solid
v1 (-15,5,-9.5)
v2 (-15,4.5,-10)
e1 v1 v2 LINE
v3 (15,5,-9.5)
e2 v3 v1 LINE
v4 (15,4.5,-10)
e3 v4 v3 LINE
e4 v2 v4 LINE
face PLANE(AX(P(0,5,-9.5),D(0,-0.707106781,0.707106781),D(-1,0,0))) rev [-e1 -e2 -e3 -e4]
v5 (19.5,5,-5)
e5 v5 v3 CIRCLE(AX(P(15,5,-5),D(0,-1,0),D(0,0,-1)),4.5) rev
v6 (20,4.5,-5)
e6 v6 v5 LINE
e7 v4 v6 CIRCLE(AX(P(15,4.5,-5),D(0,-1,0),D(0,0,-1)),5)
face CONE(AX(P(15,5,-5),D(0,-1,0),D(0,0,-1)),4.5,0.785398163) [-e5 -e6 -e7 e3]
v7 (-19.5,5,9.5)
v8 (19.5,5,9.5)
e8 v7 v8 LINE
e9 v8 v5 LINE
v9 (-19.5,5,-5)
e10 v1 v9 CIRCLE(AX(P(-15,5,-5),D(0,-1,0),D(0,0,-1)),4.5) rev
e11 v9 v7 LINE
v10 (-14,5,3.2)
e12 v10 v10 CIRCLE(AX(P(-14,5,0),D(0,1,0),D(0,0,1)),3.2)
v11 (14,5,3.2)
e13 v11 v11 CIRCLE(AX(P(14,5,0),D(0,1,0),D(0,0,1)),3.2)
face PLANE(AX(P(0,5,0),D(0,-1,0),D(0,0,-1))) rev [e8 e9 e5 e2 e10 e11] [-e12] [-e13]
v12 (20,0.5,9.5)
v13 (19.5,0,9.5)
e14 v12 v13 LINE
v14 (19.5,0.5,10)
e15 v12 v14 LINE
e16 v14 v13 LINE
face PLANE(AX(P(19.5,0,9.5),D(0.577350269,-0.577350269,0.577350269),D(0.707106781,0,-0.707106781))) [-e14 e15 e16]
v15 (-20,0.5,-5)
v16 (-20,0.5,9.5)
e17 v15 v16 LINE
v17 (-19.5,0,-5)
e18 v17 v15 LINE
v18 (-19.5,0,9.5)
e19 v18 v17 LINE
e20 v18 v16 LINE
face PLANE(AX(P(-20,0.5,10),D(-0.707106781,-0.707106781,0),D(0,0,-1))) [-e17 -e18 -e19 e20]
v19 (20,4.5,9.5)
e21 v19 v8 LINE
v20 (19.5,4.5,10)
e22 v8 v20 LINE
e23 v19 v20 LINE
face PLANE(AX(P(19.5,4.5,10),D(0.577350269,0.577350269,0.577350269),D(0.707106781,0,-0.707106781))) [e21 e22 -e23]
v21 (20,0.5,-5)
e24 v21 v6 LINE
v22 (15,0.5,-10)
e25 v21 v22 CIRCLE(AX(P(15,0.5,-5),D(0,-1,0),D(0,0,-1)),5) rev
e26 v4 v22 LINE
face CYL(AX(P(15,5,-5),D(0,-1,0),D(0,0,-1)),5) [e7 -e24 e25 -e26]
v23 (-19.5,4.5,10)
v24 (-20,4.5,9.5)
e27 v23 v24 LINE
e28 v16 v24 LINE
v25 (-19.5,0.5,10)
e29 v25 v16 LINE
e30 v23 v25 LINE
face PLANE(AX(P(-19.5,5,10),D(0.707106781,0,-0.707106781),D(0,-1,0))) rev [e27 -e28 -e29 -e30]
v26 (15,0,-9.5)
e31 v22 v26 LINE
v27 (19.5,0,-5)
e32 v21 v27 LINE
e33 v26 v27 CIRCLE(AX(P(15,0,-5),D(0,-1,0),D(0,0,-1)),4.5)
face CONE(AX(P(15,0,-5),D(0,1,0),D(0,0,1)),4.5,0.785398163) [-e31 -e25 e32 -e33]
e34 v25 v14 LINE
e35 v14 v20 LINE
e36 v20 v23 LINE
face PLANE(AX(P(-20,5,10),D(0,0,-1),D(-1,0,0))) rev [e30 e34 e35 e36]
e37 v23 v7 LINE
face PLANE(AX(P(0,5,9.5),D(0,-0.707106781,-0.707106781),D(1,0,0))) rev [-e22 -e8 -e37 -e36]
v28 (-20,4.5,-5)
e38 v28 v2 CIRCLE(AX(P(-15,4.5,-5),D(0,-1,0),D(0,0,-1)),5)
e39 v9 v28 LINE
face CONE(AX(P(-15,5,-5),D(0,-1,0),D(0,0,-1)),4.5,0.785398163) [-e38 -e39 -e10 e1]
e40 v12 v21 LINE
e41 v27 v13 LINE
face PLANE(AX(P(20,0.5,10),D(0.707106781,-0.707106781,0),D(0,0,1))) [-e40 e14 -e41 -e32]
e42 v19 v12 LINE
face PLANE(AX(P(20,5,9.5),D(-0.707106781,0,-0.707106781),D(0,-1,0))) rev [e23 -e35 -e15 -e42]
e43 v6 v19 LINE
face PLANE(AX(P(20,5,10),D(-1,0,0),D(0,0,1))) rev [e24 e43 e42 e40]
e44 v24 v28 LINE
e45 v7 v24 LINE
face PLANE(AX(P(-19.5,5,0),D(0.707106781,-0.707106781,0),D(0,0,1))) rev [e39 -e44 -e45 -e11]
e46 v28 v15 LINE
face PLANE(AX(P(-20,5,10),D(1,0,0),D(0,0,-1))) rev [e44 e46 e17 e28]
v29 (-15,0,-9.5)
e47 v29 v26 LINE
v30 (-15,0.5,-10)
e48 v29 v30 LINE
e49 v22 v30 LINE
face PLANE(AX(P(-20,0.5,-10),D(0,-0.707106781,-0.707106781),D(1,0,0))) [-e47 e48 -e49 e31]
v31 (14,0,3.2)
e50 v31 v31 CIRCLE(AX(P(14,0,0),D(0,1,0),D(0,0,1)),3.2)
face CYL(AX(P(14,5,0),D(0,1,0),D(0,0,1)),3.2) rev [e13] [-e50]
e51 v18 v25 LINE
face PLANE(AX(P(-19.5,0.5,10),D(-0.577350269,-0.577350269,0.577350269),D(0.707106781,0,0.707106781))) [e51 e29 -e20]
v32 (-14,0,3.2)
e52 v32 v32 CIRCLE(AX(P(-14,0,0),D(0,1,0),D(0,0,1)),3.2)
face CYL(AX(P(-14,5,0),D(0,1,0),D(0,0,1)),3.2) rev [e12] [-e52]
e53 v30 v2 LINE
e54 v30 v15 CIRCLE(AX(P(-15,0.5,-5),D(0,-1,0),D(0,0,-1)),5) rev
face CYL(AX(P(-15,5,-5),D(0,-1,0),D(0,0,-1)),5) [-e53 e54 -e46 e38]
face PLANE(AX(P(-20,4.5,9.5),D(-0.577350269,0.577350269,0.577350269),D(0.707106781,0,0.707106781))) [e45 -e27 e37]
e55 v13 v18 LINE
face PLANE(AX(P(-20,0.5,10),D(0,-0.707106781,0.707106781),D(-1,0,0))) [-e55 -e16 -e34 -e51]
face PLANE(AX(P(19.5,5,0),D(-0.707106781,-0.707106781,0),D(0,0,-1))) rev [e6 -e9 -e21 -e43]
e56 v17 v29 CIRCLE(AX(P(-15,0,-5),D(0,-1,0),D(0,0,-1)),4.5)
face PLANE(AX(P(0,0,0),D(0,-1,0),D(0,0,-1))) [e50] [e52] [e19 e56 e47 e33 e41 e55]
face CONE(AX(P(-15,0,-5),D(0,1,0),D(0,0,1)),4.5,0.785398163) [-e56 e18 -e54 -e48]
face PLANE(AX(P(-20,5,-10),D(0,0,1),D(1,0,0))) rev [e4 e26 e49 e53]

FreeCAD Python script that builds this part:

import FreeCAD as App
import Part
import Sketcher

V = App.Vector


def edges_at(feature, points):
    """Names of the edges that pass closest to the given points."""
    edges = feature.Shape.Edges
    near = lambda p: min(range(len(edges)), key=lambda i: edges[i].distToShape(Part.Vertex(*p))[0])
    return sorted({f"Edge{near(p) + 1}" for p in points})

doc = App.newDocument("Part")
body = doc.addObject("PartDesign::Body", "Body")

# Sketch on XZ plane
sketch1 = body.newObject("Sketcher::SketchObject", "Sketch")
sketch1.AttachmentSupport = (doc.getObject("XZ_Plane"), [""])
sketch1.MapMode = "FlatFace"
sketch1.addGeometry(Part.LineSegment(V(-20, -10, 0), V(-20, 10, 0)), False)
sketch1.addGeometry(Part.LineSegment(V(-20, 10, 0), V(20, 10, 0)), False)
sketch1.addGeometry(Part.LineSegment(V(20, 10, 0), V(20, -10, 0)), False)
sketch1.addGeometry(Part.LineSegment(V(20, -10, 0), V(-20, -10, 0)), False)
sketch1.addConstraint(Sketcher.Constraint("Coincident", 0, 2, 1, 1))
sketch1.addConstraint(Sketcher.Constraint("Coincident", 1, 2, 2, 1))
sketch1.addConstraint(Sketcher.Constraint("Coincident", 2, 2, 3, 1))
sketch1.addConstraint(Sketcher.Constraint("Coincident", 3, 2, 0, 1))
sketch1.addConstraint(Sketcher.Constraint("Vertical", 0))
sketch1.addConstraint(Sketcher.Constraint("Horizontal", 1))
sketch1.addConstraint(Sketcher.Constraint("Vertical", 2))
sketch1.addConstraint(Sketcher.Constraint("Horizontal", 3))
sketch1.addConstraint(Sketcher.Constraint("Symmetric", 0, 2, 2, 2, -1, 1))
sketch1.addConstraint(Sketcher.Constraint("DistanceX", 1, 1, 1, 2, 40.0))
sketch1.addConstraint(Sketcher.Constraint("DistanceY", 0, 1, 0, 2, 20.0))
pad1 = body.newObject("PartDesign::Pad", "Pad")
pad1.Profile = sketch1
pad1.Length = 5
pad1.Reversed = True

# Sketch on XZ plane
sketch2 = body.newObject("Sketcher::SketchObject", "Sketch001")
sketch2.AttachmentSupport = (doc.getObject("XZ_Plane"), [""])
sketch2.MapMode = "FlatFace"
sketch2.AttachmentOffset = App.Placement(V(0, 0, -5), App.Rotation())
sketch2.addGeometry(Part.Circle(V(-14, 0, 0), V(0, 0, 1), 3.2), False)
sketch2.addGeometry(Part.Circle(V(14, 0, 0), V(0, 0, 1), 3.2), False)
sketch2.addConstraint(Sketcher.Constraint("Equal", 0, 1))
sketch2.addConstraint(Sketcher.Constraint("Symmetric", 0, 3, 1, 3, -1, 1))
sketch2.addConstraint(Sketcher.Constraint("PointOnObject", 0, 3, -1))
sketch2.addConstraint(Sketcher.Constraint("Diameter", 0, 6.4))
sketch2.addConstraint(Sketcher.Constraint("DistanceX", 0, 3, -1, 1, 14.0))
doc.recompute()
hole = body.newObject("PartDesign::Hole", "Hole")
hole.Profile = sketch2
hole.ThreadType = "None"
hole.Diameter = 6.4
hole.DepthType = "ThroughAll"
hole.Reversed = True
doc.recompute()

fillet = body.newObject("PartDesign::Fillet", "Fillet")
fillet.Base = (hole, edges_at(hole, [(-20, 2.5, -10), (20, 2.5, -10)]))
fillet.Radius = 5
doc.recompute()

chamfer = body.newObject("PartDesign::Chamfer", "Chamfer")
chamfer.Base = (fillet, edges_at(fillet, [
    (0, 5, 10),
    (-20, 0, 2.5),
    (-20, 5, 2.5),
    (0, 0, -10),
    (18.536, 0, -8.536),
    (-18.536, 0, -8.536),
    (0, 5, -10),
    (18.536, 5, -8.536),
    (-18.536, 5, -8.536),
    (20, 5, 2.5),
    (0, 0, 10),
    (20, 0, 2.5),
    (20, 2.5, 10),
    (-20, 2.5, 10),
]))
chamfer.Size = 0.5

doc.recompute()
